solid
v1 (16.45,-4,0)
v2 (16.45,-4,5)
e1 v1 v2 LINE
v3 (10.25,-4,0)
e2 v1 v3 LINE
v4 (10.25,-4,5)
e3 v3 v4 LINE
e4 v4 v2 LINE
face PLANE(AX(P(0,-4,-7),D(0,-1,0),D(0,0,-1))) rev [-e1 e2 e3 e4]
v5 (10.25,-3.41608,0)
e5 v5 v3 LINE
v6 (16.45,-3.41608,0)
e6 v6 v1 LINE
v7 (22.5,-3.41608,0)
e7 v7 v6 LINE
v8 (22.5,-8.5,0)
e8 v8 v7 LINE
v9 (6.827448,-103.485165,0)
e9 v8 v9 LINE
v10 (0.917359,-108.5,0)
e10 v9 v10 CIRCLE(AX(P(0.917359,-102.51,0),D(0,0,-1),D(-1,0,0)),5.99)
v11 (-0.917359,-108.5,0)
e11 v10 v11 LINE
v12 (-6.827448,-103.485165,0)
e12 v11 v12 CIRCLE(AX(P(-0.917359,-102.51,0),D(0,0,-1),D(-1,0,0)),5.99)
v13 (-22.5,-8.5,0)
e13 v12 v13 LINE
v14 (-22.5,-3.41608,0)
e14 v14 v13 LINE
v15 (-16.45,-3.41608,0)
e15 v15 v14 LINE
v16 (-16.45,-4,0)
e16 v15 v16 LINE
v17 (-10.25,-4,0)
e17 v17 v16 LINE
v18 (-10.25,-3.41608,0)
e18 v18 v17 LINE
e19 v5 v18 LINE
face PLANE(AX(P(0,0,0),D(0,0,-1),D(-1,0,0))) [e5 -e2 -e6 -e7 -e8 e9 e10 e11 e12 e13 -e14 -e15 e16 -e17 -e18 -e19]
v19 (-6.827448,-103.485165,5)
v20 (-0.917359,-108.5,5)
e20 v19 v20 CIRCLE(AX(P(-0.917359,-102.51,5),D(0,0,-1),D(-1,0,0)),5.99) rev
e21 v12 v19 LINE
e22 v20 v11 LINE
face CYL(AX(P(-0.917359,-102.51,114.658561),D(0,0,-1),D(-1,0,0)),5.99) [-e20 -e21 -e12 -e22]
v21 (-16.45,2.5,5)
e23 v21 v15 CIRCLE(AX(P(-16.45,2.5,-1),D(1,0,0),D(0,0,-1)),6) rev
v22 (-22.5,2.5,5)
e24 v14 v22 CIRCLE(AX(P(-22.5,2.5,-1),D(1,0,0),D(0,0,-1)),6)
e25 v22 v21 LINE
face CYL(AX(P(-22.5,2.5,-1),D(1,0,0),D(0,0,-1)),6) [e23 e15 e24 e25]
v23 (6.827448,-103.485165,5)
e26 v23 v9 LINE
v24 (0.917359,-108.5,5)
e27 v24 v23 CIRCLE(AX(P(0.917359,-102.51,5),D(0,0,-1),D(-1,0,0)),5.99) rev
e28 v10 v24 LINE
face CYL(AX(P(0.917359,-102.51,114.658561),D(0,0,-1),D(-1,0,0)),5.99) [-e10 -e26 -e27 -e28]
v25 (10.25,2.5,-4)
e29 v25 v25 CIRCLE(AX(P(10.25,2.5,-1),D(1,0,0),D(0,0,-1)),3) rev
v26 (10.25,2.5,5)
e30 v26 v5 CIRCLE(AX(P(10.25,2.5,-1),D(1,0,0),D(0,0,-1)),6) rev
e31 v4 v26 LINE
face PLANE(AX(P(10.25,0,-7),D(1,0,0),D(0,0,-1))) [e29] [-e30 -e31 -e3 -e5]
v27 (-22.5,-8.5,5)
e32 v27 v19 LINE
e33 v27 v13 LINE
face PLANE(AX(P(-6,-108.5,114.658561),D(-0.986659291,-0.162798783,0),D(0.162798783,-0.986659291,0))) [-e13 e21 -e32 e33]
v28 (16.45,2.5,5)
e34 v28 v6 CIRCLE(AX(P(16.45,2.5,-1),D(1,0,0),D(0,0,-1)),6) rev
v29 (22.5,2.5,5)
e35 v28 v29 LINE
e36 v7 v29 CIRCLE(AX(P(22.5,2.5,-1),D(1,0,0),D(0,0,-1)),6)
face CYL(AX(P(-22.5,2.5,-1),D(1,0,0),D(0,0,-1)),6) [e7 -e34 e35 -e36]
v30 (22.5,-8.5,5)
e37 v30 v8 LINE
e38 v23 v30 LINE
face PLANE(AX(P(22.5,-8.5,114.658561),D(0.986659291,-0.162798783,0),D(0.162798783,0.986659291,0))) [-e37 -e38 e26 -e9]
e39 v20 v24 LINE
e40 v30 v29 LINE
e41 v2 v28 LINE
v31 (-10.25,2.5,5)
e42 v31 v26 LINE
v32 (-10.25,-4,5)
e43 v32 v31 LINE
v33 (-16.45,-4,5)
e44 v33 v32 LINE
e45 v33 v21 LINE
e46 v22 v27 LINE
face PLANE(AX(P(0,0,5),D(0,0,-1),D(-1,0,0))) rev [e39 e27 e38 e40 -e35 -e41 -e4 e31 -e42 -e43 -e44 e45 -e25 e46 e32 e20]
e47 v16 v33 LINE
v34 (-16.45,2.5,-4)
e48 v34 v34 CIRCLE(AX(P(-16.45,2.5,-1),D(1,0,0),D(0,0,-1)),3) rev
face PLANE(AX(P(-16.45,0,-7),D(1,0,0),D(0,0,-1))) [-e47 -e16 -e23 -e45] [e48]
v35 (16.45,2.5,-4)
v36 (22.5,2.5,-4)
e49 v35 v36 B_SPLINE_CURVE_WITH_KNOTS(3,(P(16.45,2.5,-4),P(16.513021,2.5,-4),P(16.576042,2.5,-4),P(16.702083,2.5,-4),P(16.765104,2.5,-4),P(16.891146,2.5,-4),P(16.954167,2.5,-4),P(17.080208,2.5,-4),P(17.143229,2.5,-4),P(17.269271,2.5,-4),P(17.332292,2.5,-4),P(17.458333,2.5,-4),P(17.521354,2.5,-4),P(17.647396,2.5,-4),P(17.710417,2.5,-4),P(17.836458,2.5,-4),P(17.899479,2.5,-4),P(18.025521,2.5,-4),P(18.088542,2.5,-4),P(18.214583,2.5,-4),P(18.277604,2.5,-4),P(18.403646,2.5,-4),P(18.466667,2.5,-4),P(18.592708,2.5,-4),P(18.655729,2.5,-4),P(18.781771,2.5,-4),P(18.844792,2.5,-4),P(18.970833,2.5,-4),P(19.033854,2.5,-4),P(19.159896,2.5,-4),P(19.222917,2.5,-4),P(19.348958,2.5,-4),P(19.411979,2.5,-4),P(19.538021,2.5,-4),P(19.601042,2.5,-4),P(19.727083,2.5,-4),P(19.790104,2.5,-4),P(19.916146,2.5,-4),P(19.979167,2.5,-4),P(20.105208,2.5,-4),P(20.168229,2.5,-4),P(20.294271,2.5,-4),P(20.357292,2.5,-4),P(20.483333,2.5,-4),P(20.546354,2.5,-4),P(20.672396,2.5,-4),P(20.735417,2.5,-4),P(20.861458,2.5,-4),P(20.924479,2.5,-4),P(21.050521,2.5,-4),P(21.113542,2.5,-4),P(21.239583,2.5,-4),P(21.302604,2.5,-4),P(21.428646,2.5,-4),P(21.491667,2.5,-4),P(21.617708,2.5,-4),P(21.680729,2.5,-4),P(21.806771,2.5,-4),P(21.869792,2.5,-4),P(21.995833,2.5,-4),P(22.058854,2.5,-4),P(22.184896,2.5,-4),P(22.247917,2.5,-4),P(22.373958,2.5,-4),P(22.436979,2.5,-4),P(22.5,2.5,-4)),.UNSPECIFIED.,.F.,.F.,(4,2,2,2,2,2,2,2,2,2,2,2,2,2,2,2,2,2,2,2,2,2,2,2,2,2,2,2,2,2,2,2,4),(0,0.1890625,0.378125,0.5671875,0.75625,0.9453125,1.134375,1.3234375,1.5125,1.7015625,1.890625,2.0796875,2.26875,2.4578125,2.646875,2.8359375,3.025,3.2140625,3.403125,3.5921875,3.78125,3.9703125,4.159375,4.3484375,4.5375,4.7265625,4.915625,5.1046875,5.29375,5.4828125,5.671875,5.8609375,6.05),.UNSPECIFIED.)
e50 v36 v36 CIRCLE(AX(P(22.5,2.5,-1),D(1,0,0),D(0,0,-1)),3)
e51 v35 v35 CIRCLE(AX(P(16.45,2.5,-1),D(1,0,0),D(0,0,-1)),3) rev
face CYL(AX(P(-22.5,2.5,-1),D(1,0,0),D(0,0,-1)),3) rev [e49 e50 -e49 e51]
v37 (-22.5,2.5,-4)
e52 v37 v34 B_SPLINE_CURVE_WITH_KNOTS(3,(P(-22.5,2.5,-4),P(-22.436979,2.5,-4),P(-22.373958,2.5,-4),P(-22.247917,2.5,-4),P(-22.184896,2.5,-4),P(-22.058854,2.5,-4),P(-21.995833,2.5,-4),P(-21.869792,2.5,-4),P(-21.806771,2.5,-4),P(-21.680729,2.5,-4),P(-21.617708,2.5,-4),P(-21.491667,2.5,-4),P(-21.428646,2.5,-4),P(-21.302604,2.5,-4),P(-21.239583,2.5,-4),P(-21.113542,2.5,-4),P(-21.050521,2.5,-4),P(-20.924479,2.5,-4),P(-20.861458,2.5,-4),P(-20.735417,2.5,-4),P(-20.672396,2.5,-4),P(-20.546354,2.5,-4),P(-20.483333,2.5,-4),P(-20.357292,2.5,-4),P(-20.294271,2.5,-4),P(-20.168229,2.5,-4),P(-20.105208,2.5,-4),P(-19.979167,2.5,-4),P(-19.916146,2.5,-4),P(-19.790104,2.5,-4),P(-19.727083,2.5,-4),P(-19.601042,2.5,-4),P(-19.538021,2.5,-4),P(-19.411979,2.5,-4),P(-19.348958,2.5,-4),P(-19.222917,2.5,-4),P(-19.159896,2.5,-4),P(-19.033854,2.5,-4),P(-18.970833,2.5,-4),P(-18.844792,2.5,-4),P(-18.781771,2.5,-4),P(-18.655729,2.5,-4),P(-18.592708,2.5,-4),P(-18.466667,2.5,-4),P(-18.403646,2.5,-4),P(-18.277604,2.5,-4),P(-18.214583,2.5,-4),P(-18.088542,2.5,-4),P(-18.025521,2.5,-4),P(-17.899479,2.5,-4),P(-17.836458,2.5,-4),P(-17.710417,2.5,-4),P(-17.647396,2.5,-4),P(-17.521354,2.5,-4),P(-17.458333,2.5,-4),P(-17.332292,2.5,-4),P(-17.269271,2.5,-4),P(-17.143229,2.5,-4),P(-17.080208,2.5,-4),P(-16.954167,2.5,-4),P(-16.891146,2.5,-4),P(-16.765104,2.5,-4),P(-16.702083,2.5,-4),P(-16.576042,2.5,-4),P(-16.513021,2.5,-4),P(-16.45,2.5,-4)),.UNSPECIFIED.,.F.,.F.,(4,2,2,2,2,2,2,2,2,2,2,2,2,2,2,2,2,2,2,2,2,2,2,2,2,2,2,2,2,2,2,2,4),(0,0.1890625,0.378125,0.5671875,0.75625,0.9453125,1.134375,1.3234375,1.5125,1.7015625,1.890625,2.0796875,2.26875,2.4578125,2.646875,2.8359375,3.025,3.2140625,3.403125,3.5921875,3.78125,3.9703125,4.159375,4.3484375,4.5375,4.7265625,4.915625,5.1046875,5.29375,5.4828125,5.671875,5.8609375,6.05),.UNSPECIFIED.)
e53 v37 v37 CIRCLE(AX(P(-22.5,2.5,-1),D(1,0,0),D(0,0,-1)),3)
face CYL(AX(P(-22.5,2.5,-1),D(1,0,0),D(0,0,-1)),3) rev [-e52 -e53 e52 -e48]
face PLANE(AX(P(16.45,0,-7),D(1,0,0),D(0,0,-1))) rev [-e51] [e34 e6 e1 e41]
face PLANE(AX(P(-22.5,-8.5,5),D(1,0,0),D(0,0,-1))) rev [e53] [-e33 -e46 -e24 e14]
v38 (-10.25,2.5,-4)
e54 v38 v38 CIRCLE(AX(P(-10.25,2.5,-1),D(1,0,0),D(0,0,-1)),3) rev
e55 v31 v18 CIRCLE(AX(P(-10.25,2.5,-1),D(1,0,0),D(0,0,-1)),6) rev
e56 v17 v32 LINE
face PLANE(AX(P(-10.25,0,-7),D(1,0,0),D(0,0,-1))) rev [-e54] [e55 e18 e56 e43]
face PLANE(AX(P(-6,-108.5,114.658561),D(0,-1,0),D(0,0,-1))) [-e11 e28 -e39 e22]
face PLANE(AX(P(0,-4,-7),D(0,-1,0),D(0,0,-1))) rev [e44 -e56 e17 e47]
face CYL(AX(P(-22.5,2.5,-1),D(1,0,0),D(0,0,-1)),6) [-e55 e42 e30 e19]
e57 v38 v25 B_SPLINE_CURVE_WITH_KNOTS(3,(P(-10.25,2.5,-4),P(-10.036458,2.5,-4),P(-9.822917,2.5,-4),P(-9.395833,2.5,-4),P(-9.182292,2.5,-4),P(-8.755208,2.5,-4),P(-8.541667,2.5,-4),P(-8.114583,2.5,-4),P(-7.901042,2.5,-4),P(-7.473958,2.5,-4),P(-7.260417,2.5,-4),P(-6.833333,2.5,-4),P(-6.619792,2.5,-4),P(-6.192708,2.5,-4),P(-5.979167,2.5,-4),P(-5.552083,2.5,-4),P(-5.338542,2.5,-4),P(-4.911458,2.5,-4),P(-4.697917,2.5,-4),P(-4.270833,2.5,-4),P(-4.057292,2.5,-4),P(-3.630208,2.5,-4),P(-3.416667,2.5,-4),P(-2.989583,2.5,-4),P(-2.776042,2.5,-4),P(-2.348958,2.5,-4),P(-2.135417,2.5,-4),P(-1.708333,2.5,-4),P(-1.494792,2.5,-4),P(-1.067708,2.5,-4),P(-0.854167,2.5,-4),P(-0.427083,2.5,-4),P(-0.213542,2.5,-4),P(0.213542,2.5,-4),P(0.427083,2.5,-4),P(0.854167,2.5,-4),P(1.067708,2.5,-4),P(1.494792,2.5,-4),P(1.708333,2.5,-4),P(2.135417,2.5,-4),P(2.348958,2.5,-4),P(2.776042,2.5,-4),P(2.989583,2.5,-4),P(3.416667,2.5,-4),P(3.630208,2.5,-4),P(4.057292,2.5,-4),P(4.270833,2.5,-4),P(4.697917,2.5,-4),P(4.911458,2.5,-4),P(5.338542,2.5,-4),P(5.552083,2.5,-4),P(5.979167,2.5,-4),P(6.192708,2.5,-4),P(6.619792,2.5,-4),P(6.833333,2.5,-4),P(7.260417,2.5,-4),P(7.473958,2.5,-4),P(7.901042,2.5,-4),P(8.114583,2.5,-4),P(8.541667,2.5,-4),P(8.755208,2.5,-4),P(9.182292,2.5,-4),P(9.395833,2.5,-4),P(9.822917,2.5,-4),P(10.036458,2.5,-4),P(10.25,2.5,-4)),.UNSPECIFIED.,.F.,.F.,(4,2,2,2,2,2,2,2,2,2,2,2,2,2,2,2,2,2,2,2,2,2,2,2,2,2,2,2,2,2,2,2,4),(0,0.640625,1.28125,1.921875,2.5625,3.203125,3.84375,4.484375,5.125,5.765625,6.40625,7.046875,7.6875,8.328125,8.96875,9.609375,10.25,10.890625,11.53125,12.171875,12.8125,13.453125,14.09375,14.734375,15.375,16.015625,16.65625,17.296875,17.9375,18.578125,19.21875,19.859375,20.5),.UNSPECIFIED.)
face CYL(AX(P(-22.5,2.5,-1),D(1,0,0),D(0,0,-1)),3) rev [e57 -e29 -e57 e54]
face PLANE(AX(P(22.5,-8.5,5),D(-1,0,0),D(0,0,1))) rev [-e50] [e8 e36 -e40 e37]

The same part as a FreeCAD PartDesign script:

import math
import FreeCAD as App
import Part
import Sketcher
from FreeCAD import Vector
Q = App.Units.Quantity


def edges_at(feature, points):
    """Names of the edges that pass closest to the given points."""
    edges = feature.Shape.Edges
    near = lambda p: min(range(len(edges)), key=lambda i: edges[i].distToShape(Part.Vertex(*p))[0])
    return sorted({f"Edge{near(p) + 1}" for p in points})

doc = App.newDocument("Part")
body = doc.addObject("PartDesign::Body", "Body")

# Sketch on XY plane
sketch1 = body.newObject("Sketcher::SketchObject", "Sketch")
sketch1.AttachmentSupport = (doc.getObject("XY_Plane"), [""])
sketch1.MapMode = "FlatFace"
sketch1.addGeometry([
    Part.LineSegment(Vector(-22.5, 8.5, 0), Vector(-22.5, -8.5, 0)),
    Part.LineSegment(Vector(-22.5, -8.5, 0), Vector(22.5, -8.5, 0)),
    Part.LineSegment(Vector(22.5, -8.5, 0), Vector(22.5, 8.5, 0)),
    Part.LineSegment(Vector(22.5, 8.5, 0), Vector(-22.5, 8.5, 0)),
], False)
sketch1.addConstraint([
    Sketcher.Constraint("Coincident", 0, 2, 1, 1),
    Sketcher.Constraint("Coincident", 1, 2, 2, 1),
    Sketcher.Constraint("Coincident", 2, 2, 3, 1),
    Sketcher.Constraint("Coincident", 3, 2, 0, 1),
    Sketcher.Constraint("Vertical", 0),
    Sketcher.Constraint("Horizontal", 1),
    Sketcher.Constraint("Vertical", 2),
    Sketcher.Constraint("Horizontal", 3),
    Sketcher.Constraint("Symmetric", 0, 2, 2, 2, -1, 1),
    Sketcher.Constraint("DistanceX", 1, 1, 1, 2, Q("45 mm")),
    Sketcher.Constraint("DistanceY", 0, 2, 0, 1, Q("17 mm")),
])
pad1 = body.newObject("PartDesign::Pad", "Pad")
pad1.Profile = sketch1
pad1.Length = 5

# Sketch on YZ plane
sketch2 = body.newObject("Sketcher::SketchObject", "Sketch001")
sketch2.AttachmentSupport = (doc.getObject("YZ_Plane"), [""])
sketch2.MapMode = "FlatFace"
sketch2.AttachmentOffset = App.Placement(Vector(0, 0, 22.5), App.Rotation())
sketch2.addGeometry([
    Part.Circle(Vector(2.5, -1, 0), Vector(0, 0, 1), 6),
    Part.Circle(Vector(2.5, -1, 0), Vector(0, 0, 1), 3),
], False)
sketch2.addConstraint([
    Sketcher.Constraint("Coincident", 1, 3, 0, 3),
    Sketcher.Constraint("Diameter", 0, Q("12 mm")),
    Sketcher.Constraint("Diameter", 1, Q("6 mm")),
    Sketcher.Constraint("DistanceY", 0, 3, -1, 1, Q("1 mm")),
    Sketcher.Constraint("DistanceX", -1, 1, 0, 3, Q("2.5 mm")),
])
pad2 = body.newObject("PartDesign::Pad", "Pad001")
pad2.Profile = sketch2
pad2.Length = 45
pad2.Reversed = True

# Sketch on YZ plane
sketch3 = body.newObject("Sketcher::SketchObject", "Sketch002")
sketch3.AttachmentSupport = (doc.getObject("YZ_Plane"), [""])
sketch3.MapMode = "FlatFace"
sketch3.AttachmentOffset = App.Placement(Vector(0, 0, 22.5), App.Rotation())
sketch3.addGeometry([
    Part.LineSegment(Vector(8.5, 5, 0), Vector(2.5, 5, 0)),  # 0
    Part.ArcOfCircle(Part.Circle(Vector(2.5, -1, 0), Vector(0, 0, 1), 6), math.radians(9.594068), math.radians(90)),  # 1
    Part.LineSegment(Vector(8.41608, 0, 0), Vector(8.5, 0, 0)),  # 2
    Part.LineSegment(Vector(8.5, 0, 0), Vector(8.5, 5, 0)),  # 3
    Part.ArcOfCircle(Part.Circle(Vector(2.5, -1, 0), Vector(0, 0, 1), 3), math.radians(160.528779), math.radians(270)),  # 4
    Part.ArcOfCircle(Part.Circle(Vector(2.5, -1, 0), Vector(0, 0, 1), 3), math.radians(-90), math.radians(19.471221)),  # 5
    Part.ArcOfCircle(Part.Circle(Vector(2.5, -1, 0), Vector(0, 0, 1), 3), math.radians(19.471221), math.radians(160.528779)),  # 6
], False)
sketch3.addConstraint([
    Sketcher.Constraint("Tangent", 0, 2, 1, 2),
    Sketcher.Constraint("Coincident", 1, 1, 2, 1),
    Sketcher.Constraint("Coincident", 2, 2, 3, 1),
    Sketcher.Constraint("Coincident", 3, 2, 0, 1),
    Sketcher.Constraint("Tangent", 4, 2, 5, 1),
    Sketcher.Constraint("Tangent", 5, 2, 6, 1),
    Sketcher.Constraint("Tangent", 6, 2, 4, 1),
    Sketcher.Constraint("Horizontal", 0),
    Sketcher.Constraint("Horizontal", 2),
    Sketcher.Constraint("Vertical", 3),
    Sketcher.Constraint("Coincident", 4, 3, 1, 3),
    Sketcher.Constraint("PointOnObject", 1, 1, -1),
    Sketcher.Constraint("PointOnObject", 5, 2, -1),
    Sketcher.Constraint("PointOnObject", 6, 2, -1),
    Sketcher.Constraint("Vertical", 0, 2, 4, 2),
    Sketcher.Constraint("Radius", 1, Q("6 mm")),
    Sketcher.Constraint("Radius", 4, Q("3 mm")),
    Sketcher.Constraint("DistanceX", 0, 2, 0, 1, Q("6 mm")),
    Sketcher.Constraint("DistanceY", 3, 1, 3, 2, Q("5 mm")),
    Sketcher.Constraint("DistanceX", -1, 1, 1, 3, Q("2.5 mm")),
])
pocket1 = body.newObject("PartDesign::Pocket", "Pocket")
pocket1.Profile = sketch3
pocket1.Type = "ThroughAll"

# Sketch on XY plane
sketch4 = body.newObject("Sketcher::SketchObject", "Sketch003")
sketch4.AttachmentSupport = (doc.getObject("XY_Plane"), [""])
sketch4.MapMode = "FlatFace"
sketch4.AttachmentOffset = App.Placement(Vector(0, 0, 5), App.Rotation())
sketch4.addGeometry([
    Part.LineSegment(Vector(-16.45, -4, 0), Vector(-10.25, -4, 0)),  # 0
    Part.LineSegment(Vector(-10.25, -4, 0), Vector(-10.25, 8.5, 0)),  # 1
    Part.LineSegment(Vector(-10.25, 8.5, 0), Vector(-16.45, 8.5, 0)),  # 2
    Part.LineSegment(Vector(-16.45, 8.5, 0), Vector(-16.45, -4, 0)),  # 3
    Part.LineSegment(Vector(10.25, 8.5, 0), Vector(10.25, -4, 0)),  # 4
    Part.LineSegment(Vector(10.25, -4, 0), Vector(16.45, -4, 0)),  # 5
    Part.LineSegment(Vector(16.45, -4, 0), Vector(16.45, 8.5, 0)),  # 6
    Part.LineSegment(Vector(16.45, 8.5, 0), Vector(10.25, 8.5, 0)),  # 7
], False)
sketch4.addConstraint([
    Sketcher.Constraint("Coincident", 0, 2, 1, 1),
    Sketcher.Constraint("Coincident", 1, 2, 2, 1),
    Sketcher.Constraint("Coincident", 2, 2, 3, 1),
    Sketcher.Constraint("Coincident", 3, 2, 0, 1),
    Sketcher.Constraint("Coincident", 4, 2, 5, 1),
    Sketcher.Constraint("Coincident", 5, 2, 6, 1),
    Sketcher.Constraint("Coincident", 6, 2, 7, 1),
    Sketcher.Constraint("Coincident", 7, 2, 4, 1),
    Sketcher.Constraint("Horizontal", 0),
    Sketcher.Constraint("Vertical", 1),
    Sketcher.Constraint("Horizontal", 2),
    Sketcher.Constraint("Vertical", 3),
    Sketcher.Constraint("Vertical", 4),
    Sketcher.Constraint("Horizontal", 5),
    Sketcher.Constraint("Vertical", 6),
    Sketcher.Constraint("Horizontal", 7),
    Sketcher.Constraint("Symmetric", 0, 2, 4, 2, -2),
    Sketcher.Constraint("Symmetric", 2, 2, 6, 2, -2),
    Sketcher.Constraint("DistanceX", 0, 1, 0, 2, Q("6.2 mm")),
    Sketcher.Constraint("DistanceY", 1, 1, 1, 2, Q("12.5 mm")),
    Sketcher.Constraint("DistanceY", 0, 2, -1, 1, Q("4 mm")),
    Sketcher.Constraint("DistanceX", 0, 2, 4, 2, Q("20.5 mm")),
])
pocket2 = body.newObject("PartDesign::Pocket", "Pocket001")
pocket2.Profile = sketch4
pocket2.Type = "ThroughAll"

# Sketch on XY plane
sketch5 = body.newObject("Sketcher::SketchObject", "Sketch004")
sketch5.AttachmentSupport = (doc.getObject("XY_Plane"), [""])
sketch5.MapMode = "FlatFace"
sketch5.addGeometry([
    Part.LineSegment(Vector(-22.5, -8.5, 0), Vector(22.5, -8.5, 0)),
    Part.LineSegment(Vector(22.5, -8.5, 0), Vector(6, -108.5, 0)),
    Part.LineSegment(Vector(6, -108.5, 0), Vector(-6, -108.5, 0)),
    Part.LineSegment(Vector(-6, -108.5, 0), Vector(-22.5, -8.5, 0)),
], False)
sketch5.addConstraint([
    Sketcher.Constraint("Coincident", 0, 2, 1, 1),
    Sketcher.Constraint("Coincident", 1, 2, 2, 1),
    Sketcher.Constraint("Coincident", 2, 2, 3, 1),
    Sketcher.Constraint("Coincident", 3, 2, 0, 1),
    Sketcher.Constraint("Horizontal", 0),
    Sketcher.Constraint("Horizontal", 2),
    Sketcher.Constraint("Equal", 1, 3),
    Sketcher.Constraint("DistanceX", 0, 1, 0, 2, Q("45 mm")),
    Sketcher.Constraint("DistanceX", 2, 2, 2, 1, Q("12 mm")),
    Sketcher.Constraint("DistanceX", -1, 1, 1, 2, Q("6 mm")),
    Sketcher.Constraint("DistanceY", 1, 2, 0, 2, Q("100 mm")),
    Sketcher.Constraint("DistanceY", 0, 2, -1, 1, Q("8.5 mm")),
])
pad3 = body.newObject("PartDesign::Pad", "Pad002")
pad3.Profile = sketch5
pad3.Length = 5
doc.recompute()

fillet = body.newObject("PartDesign::Fillet", "Fillet")
fillet.Base = (pad3, edges_at(pad3, [(6, -108.5, 2.5), (-6, -108.5, 2.5)]))
fillet.Radius = 5.99

doc.recompute()
